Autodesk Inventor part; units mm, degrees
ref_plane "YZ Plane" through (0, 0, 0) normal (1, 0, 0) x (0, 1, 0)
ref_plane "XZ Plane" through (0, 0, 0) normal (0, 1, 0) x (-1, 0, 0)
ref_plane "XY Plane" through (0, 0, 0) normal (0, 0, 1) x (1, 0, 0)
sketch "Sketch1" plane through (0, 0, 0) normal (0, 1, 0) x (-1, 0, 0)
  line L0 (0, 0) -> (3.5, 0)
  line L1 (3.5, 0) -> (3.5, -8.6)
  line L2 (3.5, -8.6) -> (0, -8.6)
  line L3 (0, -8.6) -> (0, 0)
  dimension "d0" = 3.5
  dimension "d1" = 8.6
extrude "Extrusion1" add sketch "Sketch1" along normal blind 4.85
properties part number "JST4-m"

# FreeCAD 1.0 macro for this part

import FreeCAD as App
import Part
import Sketcher
Q = App.Units.Quantity

doc = App.newDocument("Part")
body = doc.addObject("PartDesign::Body", "Body")

sketch1 = body.newObject("Sketcher::SketchObject", "Sketch")
sketch1.AttachmentSupport = (doc.getObject("XZ_Plane"), [""])
sketch1.MapMode = "FlatFace"
sketch1.addGeometry([
    Part.LineSegment(App.Vector(-3.5, 0, 0), App.Vector(0, 0, 0)),
    Part.LineSegment(App.Vector(0, 0, 0), App.Vector(0, -8.6, 0)),
    Part.LineSegment(App.Vector(0, -8.6, 0), App.Vector(-3.5, -8.6, 0)),
    Part.LineSegment(App.Vector(-3.5, -8.6, 0), App.Vector(-3.5, 0, 0)),
], False)
sketch1.addConstraint([
    Sketcher.Constraint("Coincident", 0, 2, 1, 1),
    Sketcher.Constraint("Coincident", 1, 2, 2, 1),
    Sketcher.Constraint("Coincident", 2, 2, 3, 1),
    Sketcher.Constraint("Coincident", 3, 2, 0, 1),
    Sketcher.Constraint("Horizontal", 0),
    Sketcher.Constraint("Vertical", 1),
    Sketcher.Constraint("Horizontal", 2),
    Sketcher.Constraint("Vertical", 3),
    Sketcher.Constraint("Coincident", 0, 2, -1, 1),
    Sketcher.Constraint("DistanceX", 0, 1, 0, 2, Q("3.5 mm")),
    Sketcher.Constraint("DistanceY", 1, 2, 1, 1, Q("8.6 mm")),
])
pad1 = body.newObject("PartDesign::Pad", "Pad")
pad1.Profile = sketch1
pad1.Length = 4.85
pad1.Reversed = True

doc.recompute()
